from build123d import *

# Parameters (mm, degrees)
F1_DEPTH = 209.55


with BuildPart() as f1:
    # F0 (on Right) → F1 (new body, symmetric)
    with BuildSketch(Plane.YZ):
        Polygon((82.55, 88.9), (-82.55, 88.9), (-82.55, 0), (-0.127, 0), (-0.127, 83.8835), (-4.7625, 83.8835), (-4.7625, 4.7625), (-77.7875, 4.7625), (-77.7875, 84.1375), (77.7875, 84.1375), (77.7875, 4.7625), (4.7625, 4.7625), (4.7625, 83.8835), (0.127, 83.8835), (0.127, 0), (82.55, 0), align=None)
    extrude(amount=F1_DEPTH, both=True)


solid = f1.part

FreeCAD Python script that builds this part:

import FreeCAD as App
import Part
import Sketcher

V = App.Vector
Q = App.Units.Quantity

doc = App.newDocument("Part")
body = doc.addObject("PartDesign::Body", "Body")

sketch1 = body.newObject("Sketcher::SketchObject", "Sketch")
sketch1.AttachmentSupport = (doc.getObject("YZ_Plane"), [""])
sketch1.MapMode = "FlatFace"
sketch1.addGeometry([
    Part.LineSegment(V(82.5, 88.9, 0), V(-82.5, 88.9, 0)),
    Part.LineSegment(V(-82.5, 88.9, 0), V(-82.5, 0, 0)),
    Part.LineSegment(V(-82.5, 0, 0), V(-0.1, 0, 0)),
    Part.LineSegment(V(-0.1, 0, 0), V(-0.1, 83.9, 0)),
    Part.LineSegment(V(-0.1, 83.9, 0), V(-4.8, 83.9, 0)),
    Part.LineSegment(V(-4.8, 83.9, 0), V(-4.8, 4.8, 0)),
    Part.LineSegment(V(-4.8, 4.8, 0), V(-77.8, 4.8, 0)),
    Part.LineSegment(V(-77.8, 4.8, 0), V(-77.8, 84.1, 0)),
    Part.LineSegment(V(-77.8, 84.1, 0), V(77.8, 84.1, 0)),
    Part.LineSegment(V(77.8, 84.1, 0), V(77.8, 4.8, 0)),
    Part.LineSegment(V(77.8, 4.8, 0), V(4.8, 4.8, 0)),
    Part.LineSegment(V(4.8, 4.8, 0), V(4.8, 83.9, 0)),
    Part.LineSegment(V(4.8, 83.9, 0), V(0.1, 83.9, 0)),
    Part.LineSegment(V(0.1, 83.9, 0), V(0.1, 0, 0)),
    Part.LineSegment(V(0.1, 0, 0), V(82.5, 0, 0)),
    Part.LineSegment(V(82.5, 0, 0), V(82.5, 88.9, 0)),
], False)
sketch1.addConstraint([
    Sketcher.Constraint("Coincident", 0, 2, 1, 1),
    Sketcher.Constraint("Coincident", 1, 2, 2, 1),
    Sketcher.Constraint("Coincident", 2, 2, 3, 1),
    Sketcher.Constraint("Coincident", 3, 2, 4, 1),
    Sketcher.Constraint("Coincident", 4, 2, 5, 1),
    Sketcher.Constraint("Coincident", 5, 2, 6, 1),
    Sketcher.Constraint("Coincident", 6, 2, 7, 1),
    Sketcher.Constraint("Coincident", 7, 2, 8, 1),
    Sketcher.Constraint("Coincident", 8, 2, 9, 1),
    Sketcher.Constraint("Coincident", 9, 2, 10, 1),
    Sketcher.Constraint("Coincident", 10, 2, 11, 1),
    Sketcher.Constraint("Coincident", 11, 2, 12, 1),
    Sketcher.Constraint("Coincident", 12, 2, 13, 1),
    Sketcher.Constraint("Coincident", 13, 2, 14, 1),
    Sketcher.Constraint("Coincident", 14, 2, 15, 1),
    Sketcher.Constraint("Coincident", 15, 2, 0, 1),
    Sketcher.Constraint("Horizontal", 0),
    Sketcher.Constraint("Vertical", 1),
    Sketcher.Constraint("Horizontal", 2),
    Sketcher.Constraint("Vertical", 3),
    Sketcher.Constraint("Horizontal", 4),
    Sketcher.Constraint("Vertical", 5),
    Sketcher.Constraint("Horizontal", 6),
    Sketcher.Constraint("Vertical", 7),
    Sketcher.Constraint("Horizontal", 8),
    Sketcher.Constraint("Vertical", 9),
    Sketcher.Constraint("Horizontal", 10),
    Sketcher.Constraint("Vertical", 11),
    Sketcher.Constraint("Horizontal", 12),
    Sketcher.Constraint("Vertical", 13),
    Sketcher.Constraint("Horizontal", 14),
    Sketcher.Constraint("Vertical", 15),
    Sketcher.Constraint("Symmetric", 2, 2, 13, 2, -1, 1),
    Sketcher.Constraint("Symmetric", 6, 2, 9, 2, -2),
    Sketcher.Constraint("Symmetric", 4, 2, 11, 2, -2),
    Sketcher.Constraint("Symmetric", 1, 2, 14, 2, -2),
    Sketcher.Constraint("DistanceX", 0, 2, 0, 1, Q("6.5 in")),
    Sketcher.Constraint("DistanceY", 1, 2, 1, 1, Q("3.5 in")),
    Sketcher.Constraint("DistanceX", 2, 1, 2, 2, Q("3.245 in")),
    Sketcher.Constraint("DistanceX", 6, 2, 6, 1, Q("2.875 in")),
    Sketcher.Constraint("DistanceX", 8, 1, 8, 2, Q("6.125 in")),
    Sketcher.Constraint("DistanceY", 5, 2, 5, 1, Q("3.115 in")),
    Sketcher.Constraint("DistanceY", 7, 1, 7, 2, Q("3.125 in")),
    Sketcher.Constraint("DistanceY", 3, 1, 3, 2, Q("3.3025 in")),
])
pad1 = body.newObject("PartDesign::Pad", "Pad")
pad1.Profile = sketch1
pad1.Length = Q("16.5 in")
pad1.Midplane = True

doc.recompute()
